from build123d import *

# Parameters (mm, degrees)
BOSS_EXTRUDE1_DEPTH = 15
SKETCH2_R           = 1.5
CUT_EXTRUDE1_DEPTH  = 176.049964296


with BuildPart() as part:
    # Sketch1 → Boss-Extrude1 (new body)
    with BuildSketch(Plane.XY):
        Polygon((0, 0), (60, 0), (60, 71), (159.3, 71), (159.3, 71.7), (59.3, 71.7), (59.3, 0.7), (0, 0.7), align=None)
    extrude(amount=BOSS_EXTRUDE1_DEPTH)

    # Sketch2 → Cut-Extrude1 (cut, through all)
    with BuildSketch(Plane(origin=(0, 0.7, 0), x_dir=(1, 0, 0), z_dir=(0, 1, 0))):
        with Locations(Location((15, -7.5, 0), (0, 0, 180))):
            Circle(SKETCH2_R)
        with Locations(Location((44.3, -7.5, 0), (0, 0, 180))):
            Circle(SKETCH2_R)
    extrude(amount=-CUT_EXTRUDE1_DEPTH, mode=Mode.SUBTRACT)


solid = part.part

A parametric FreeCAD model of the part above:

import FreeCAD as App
import Part
import Sketcher
from FreeCAD import Vector

doc = App.newDocument("Part")
body = doc.addObject("PartDesign::Body", "Body")

sketch1 = body.newObject("Sketcher::SketchObject", "Sketch")
sketch1.AttachmentSupport = (doc.getObject("XY_Plane"), [""])
sketch1.MapMode = "FlatFace"
sketch1.addGeometry([
    Part.LineSegment(Vector(0, 0, 0), Vector(60, 0, 0)),
    Part.LineSegment(Vector(60, 0, 0), Vector(60, 71, 0)),
    Part.LineSegment(Vector(60, 71, 0), Vector(159.3, 71, 0)),
    Part.LineSegment(Vector(159.3, 71, 0), Vector(159.3, 71.7, 0)),
    Part.LineSegment(Vector(159.3, 71.7, 0), Vector(59.3, 71.7, 0)),
    Part.LineSegment(Vector(59.3, 71.7, 0), Vector(59.3, 0.7, 0)),
    Part.LineSegment(Vector(59.3, 0.7, 0), Vector(0, 0.7, 0)),
    Part.LineSegment(Vector(0, 0.7, 0), Vector(0, 0, 0)),
], False)
sketch1.addConstraint([
    Sketcher.Constraint("Coincident", 0, 2, 1, 1),
    Sketcher.Constraint("Coincident", 1, 2, 2, 1),
    Sketcher.Constraint("Coincident", 2, 2, 3, 1),
    Sketcher.Constraint("Coincident", 3, 2, 4, 1),
    Sketcher.Constraint("Coincident", 4, 2, 5, 1),
    Sketcher.Constraint("Coincident", 5, 2, 6, 1),
    Sketcher.Constraint("Coincident", 6, 2, 7, 1),
    Sketcher.Constraint("Coincident", 7, 2, 0, 1),
    Sketcher.Constraint("Horizontal", 0),
    Sketcher.Constraint("Vertical", 1),
    Sketcher.Constraint("Horizontal", 2),
    Sketcher.Constraint("Vertical", 3),
    Sketcher.Constraint("Horizontal", 4),
    Sketcher.Constraint("Vertical", 5),
    Sketcher.Constraint("Horizontal", 6),
    Sketcher.Constraint("Vertical", 7),
    Sketcher.Constraint("Coincident", 7, 2, -1, 1),
    Sketcher.Constraint("Equal", 1, 5),
    Sketcher.Constraint("DistanceX", 0, 1, 0, 2, 60.0),
    Sketcher.Constraint("DistanceX", 4, 2, 4, 1, 100.0),
    Sketcher.Constraint("DistanceY", 1, 1, 1, 2, 71.0),
    Sketcher.Constraint("DistanceX", 2, 1, 2, 2, 99.3),
    Sketcher.Constraint("DistanceY", 3, 1, 3, 2, 0.7),
])
pad1 = body.newObject("PartDesign::Pad", "Pad")
pad1.Profile = sketch1
pad1.Length = 15

sketch2 = body.newObject("Sketcher::SketchObject", "Sketch001")
sketch2.AttachmentSupport = (doc.getObject("XZ_Plane"), [""])
sketch2.MapMode = "FlatFace"
sketch2.AttachmentOffset = App.Placement(Vector(0, 0, -0.7), App.Rotation())
sketch2.addGeometry([
    Part.Circle(Vector(15, 7.5, 0), Vector(0, 0, 1), 1.5),
    Part.Circle(Vector(44.3, 7.5, 0), Vector(0, 0, 1), 1.5),
], False)
sketch2.addConstraint([
    Sketcher.Constraint("Equal", 0, 1),
    Sketcher.Constraint("Horizontal", 0, 3, 1, 3),
    Sketcher.Constraint("Diameter", 0, 3.0),
    Sketcher.Constraint("DistanceX", -1, 1, 0, 3, 15.0),
    Sketcher.Constraint("DistanceY", -1, 1, 0, 3, 7.5),
    Sketcher.Constraint("DistanceX", -1, 1, 1, 3, 44.3),
])
pocket1 = body.newObject("PartDesign::Pocket", "Pocket")
pocket1.Profile = sketch2
pocket1.Type = "ThroughAll"
pocket1.Reversed = True

doc.recompute()
